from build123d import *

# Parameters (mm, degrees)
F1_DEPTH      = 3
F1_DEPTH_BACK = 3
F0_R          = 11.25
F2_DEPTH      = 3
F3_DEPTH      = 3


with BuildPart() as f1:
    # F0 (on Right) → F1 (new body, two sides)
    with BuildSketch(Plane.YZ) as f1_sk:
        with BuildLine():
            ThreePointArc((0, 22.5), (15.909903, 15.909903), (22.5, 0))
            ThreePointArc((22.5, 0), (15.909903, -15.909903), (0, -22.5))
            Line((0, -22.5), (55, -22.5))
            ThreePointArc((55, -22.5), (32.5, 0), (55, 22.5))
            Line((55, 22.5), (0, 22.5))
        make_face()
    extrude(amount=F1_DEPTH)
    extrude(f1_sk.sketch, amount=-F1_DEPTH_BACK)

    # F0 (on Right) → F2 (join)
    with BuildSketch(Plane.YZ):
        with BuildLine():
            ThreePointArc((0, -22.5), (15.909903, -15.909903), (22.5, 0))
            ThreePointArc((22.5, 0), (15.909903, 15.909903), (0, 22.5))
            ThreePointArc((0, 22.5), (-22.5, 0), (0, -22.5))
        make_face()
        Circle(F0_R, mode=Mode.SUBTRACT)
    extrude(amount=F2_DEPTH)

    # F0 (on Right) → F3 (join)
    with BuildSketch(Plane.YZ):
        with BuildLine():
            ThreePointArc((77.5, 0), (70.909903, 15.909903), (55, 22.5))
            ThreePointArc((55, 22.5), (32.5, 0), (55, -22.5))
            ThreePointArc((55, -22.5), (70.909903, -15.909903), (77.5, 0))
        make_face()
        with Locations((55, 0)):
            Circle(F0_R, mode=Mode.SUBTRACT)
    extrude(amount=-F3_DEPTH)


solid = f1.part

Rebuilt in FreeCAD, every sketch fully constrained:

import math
import FreeCAD as App
import Part
import Sketcher
from FreeCAD import Vector
Q = App.Units.Quantity

doc = App.newDocument("Part")
body = doc.addObject("PartDesign::Body", "Body")

sketch1 = body.newObject("Sketcher::SketchObject", "Sketch")
sketch1.AttachmentSupport = (doc.getObject("YZ_Plane"), [""])
sketch1.MapMode = "FlatFace"
sketch1.addGeometry([
    Part.ArcOfCircle(Part.Circle(Vector(0.000001, 0.000001, 0), Vector(0, 0, 1), 22.499999), math.radians(-0.000004), math.radians(90.000004)),
    Part.ArcOfCircle(Part.Circle(Vector(0.000001, -0.000001, 0), Vector(0, 0, 1), 22.499999), math.radians(-90.000004), math.radians(0.000004)),
    Part.LineSegment(Vector(0, -22.5, 0), Vector(55, -22.5, 0)),
    Part.ArcOfCircle(Part.Circle(Vector(55, 0, 0), Vector(0, 0, 1), 22.5), math.radians(90), math.radians(270)),
    Part.LineSegment(Vector(55, 22.5, 0), Vector(0, 22.5, 0)),
], False)
sketch1.addConstraint([
    Sketcher.Constraint("Tangent", 0, 1, 1, 2),
    Sketcher.Constraint("Tangent", 1, 1, 2, 1),
    Sketcher.Constraint("Tangent", 2, 2, 3, 2),
    Sketcher.Constraint("Tangent", 3, 1, 4, 1),
    Sketcher.Constraint("Tangent", 4, 2, 0, 2),
    Sketcher.Constraint("Horizontal", 2),
    Sketcher.Constraint("Horizontal", 4),
    Sketcher.Constraint("Coincident", 0, 3, -1, 1),
    Sketcher.Constraint("Equal", 0, 1),
    Sketcher.Constraint("PointOnObject", 0, 1, -1),
    Sketcher.Constraint("Radius", 0, Q("22.499999 mm")),
    Sketcher.Constraint("DistanceX", 2, 1, 2, 2, Q("55 mm")),
])
pad1 = body.newObject("PartDesign::Pad", "Pad")
pad1.Profile = sketch1
pad1.Type = "TwoLengths"
pad1.Length = 3
pad1.Length2 = 3

sketch2 = body.newObject("Sketcher::SketchObject", "Sketch001")
sketch2.AttachmentSupport = (doc.getObject("YZ_Plane"), [""])
sketch2.MapMode = "FlatFace"
sketch2.addGeometry([
    Part.ArcOfCircle(Part.Circle(Vector(0.000001, -0.000001, 0), Vector(0, 0, 1), 22.499999), math.radians(-90.000004), math.radians(0.000004)),
    Part.ArcOfCircle(Part.Circle(Vector(0.000001, 0.000001, 0), Vector(0, 0, 1), 22.499999), math.radians(-0.000004), math.radians(90.000004)),
    Part.ArcOfCircle(Part.Circle(Vector(0, 0, 0), Vector(0, 0, 1), 22.5), math.radians(90), math.radians(270)),
    Part.Circle(Vector(0, 0, 0), Vector(0, 0, 1), 11.25),
], False)
sketch2.addConstraint([
    Sketcher.Constraint("Tangent", 0, 2, 1, 1),
    Sketcher.Constraint("Tangent", 1, 2, 2, 1),
    Sketcher.Constraint("Tangent", 2, 2, 0, 1),
    Sketcher.Constraint("Coincident", 0, 3, -1, 1),
    Sketcher.Constraint("Coincident", 3, 3, -1, 1),
    Sketcher.Constraint("PointOnObject", 0, 2, -1),
    Sketcher.Constraint("PointOnObject", 1, 2, -2),
    Sketcher.Constraint("PointOnObject", 2, 2, -2),
    Sketcher.Constraint("Diameter", 3, Q("22.5 mm")),
    Sketcher.Constraint("Radius", 0, Q("22.499999 mm")),
])
pad2 = body.newObject("PartDesign::Pad", "Pad001")
pad2.Profile = sketch2
pad2.Length = 3

sketch3 = body.newObject("Sketcher::SketchObject", "Sketch002")
sketch3.AttachmentSupport = (doc.getObject("YZ_Plane"), [""])
sketch3.MapMode = "FlatFace"
sketch3.addGeometry([
    Part.ArcOfCircle(Part.Circle(Vector(55.000001, 0.000001, 0), Vector(0, 0, 1), 22.499999), math.radians(-0.000004), math.radians(90.000004)),
    Part.ArcOfCircle(Part.Circle(Vector(55, 0, 0), Vector(0, 0, 1), 22.5), math.radians(90), math.radians(270)),
    Part.ArcOfCircle(Part.Circle(Vector(55.000001, -0.000001, 0), Vector(0, 0, 1), 22.499999), math.radians(-90.000004), math.radians(0.000004)),
    Part.Circle(Vector(55, 0, 0), Vector(0, 0, 1), 11.25),
], False)
sketch3.addConstraint([
    Sketcher.Constraint("Tangent", 0, 2, 1, 1),
    Sketcher.Constraint("Tangent", 1, 2, 2, 1),
    Sketcher.Constraint("Tangent", 2, 2, 0, 1),
    Sketcher.Constraint("Coincident", 3, 3, 0, 3),
    Sketcher.Constraint("Symmetric", 0, 2, 1, 2, -1),
    Sketcher.Constraint("PointOnObject", 2, 2, -1),
    Sketcher.Constraint("Vertical", 3, 3, 0, 2),
    Sketcher.Constraint("Diameter", 3, Q("22.5 mm")),
    Sketcher.Constraint("Radius", 0, Q("22.499999 mm")),
    Sketcher.Constraint("DistanceX", -1, 1, 0, 3, Q("55.000001 mm")),
])
pad3 = body.newObject("PartDesign::Pad", "Pad002")
pad3.Profile = sketch3
pad3.Length = 3
pad3.Reversed = True

doc.recompute()
